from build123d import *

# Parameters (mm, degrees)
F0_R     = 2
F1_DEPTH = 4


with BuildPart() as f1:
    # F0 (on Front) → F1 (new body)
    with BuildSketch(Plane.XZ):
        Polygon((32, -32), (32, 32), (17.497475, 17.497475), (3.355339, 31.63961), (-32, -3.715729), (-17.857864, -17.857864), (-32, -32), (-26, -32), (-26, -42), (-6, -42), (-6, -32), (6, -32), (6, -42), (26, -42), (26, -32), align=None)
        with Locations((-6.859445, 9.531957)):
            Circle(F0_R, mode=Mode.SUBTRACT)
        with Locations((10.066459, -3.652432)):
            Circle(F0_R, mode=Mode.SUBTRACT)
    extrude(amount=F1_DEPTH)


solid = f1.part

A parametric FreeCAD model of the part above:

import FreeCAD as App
import Part
import Sketcher

V = App.Vector

doc = App.newDocument("Part")
body = doc.addObject("PartDesign::Body", "Body")

sketch1 = body.newObject("Sketcher::SketchObject", "Sketch")
sketch1.AttachmentSupport = (doc.getObject("XZ_Plane"), [""])
sketch1.MapMode = "FlatFace"
sketch1.addGeometry(Part.LineSegment(V(32, -32, 0), V(32, 32, 0)), False)
sketch1.addGeometry(Part.LineSegment(V(32, 32, 0), V(17.5, 17.5, 0)), False)
sketch1.addGeometry(Part.LineSegment(V(17.5, 17.5, 0), V(3.4, 31.6, 0)), False)
sketch1.addGeometry(Part.LineSegment(V(3.4, 31.6, 0), V(-32, -3.7, 0)), False)
sketch1.addGeometry(Part.LineSegment(V(-32, -3.7, 0), V(-17.9, -17.9, 0)), False)
sketch1.addGeometry(Part.LineSegment(V(-17.9, -17.9, 0), V(-32, -32, 0)), False)
sketch1.addGeometry(Part.LineSegment(V(-32, -32, 0), V(-26, -32, 0)), False)
sketch1.addGeometry(Part.LineSegment(V(-26, -32, 0), V(-26, -42, 0)), False)
sketch1.addGeometry(Part.LineSegment(V(-26, -42, 0), V(-6, -42, 0)), False)
sketch1.addGeometry(Part.LineSegment(V(-6, -42, 0), V(-6, -32, 0)), False)
sketch1.addGeometry(Part.LineSegment(V(-6, -32, 0), V(6, -32, 0)), False)
sketch1.addGeometry(Part.LineSegment(V(6, -32, 0), V(6, -42, 0)), False)
sketch1.addGeometry(Part.LineSegment(V(6, -42, 0), V(26, -42, 0)), False)
sketch1.addGeometry(Part.LineSegment(V(26, -42, 0), V(26, -32, 0)), False)
sketch1.addGeometry(Part.LineSegment(V(26, -32, 0), V(32, -32, 0)), False)
sketch1.addGeometry(Part.Circle(V(10.1, -3.7, 0), V(0, 0, 1), 2), False)
sketch1.addGeometry(Part.Circle(V(-6.9, 9.5, 0), V(0, 0, 1), 2), False)
sketch1.addConstraint(Sketcher.Constraint("Coincident", 0, 2, 1, 1))
sketch1.addConstraint(Sketcher.Constraint("Coincident", 1, 2, 2, 1))
sketch1.addConstraint(Sketcher.Constraint("Coincident", 2, 2, 3, 1))
sketch1.addConstraint(Sketcher.Constraint("Coincident", 3, 2, 4, 1))
sketch1.addConstraint(Sketcher.Constraint("Coincident", 4, 2, 5, 1))
sketch1.addConstraint(Sketcher.Constraint("Coincident", 5, 2, 6, 1))
sketch1.addConstraint(Sketcher.Constraint("Coincident", 6, 2, 7, 1))
sketch1.addConstraint(Sketcher.Constraint("Coincident", 7, 2, 8, 1))
sketch1.addConstraint(Sketcher.Constraint("Coincident", 8, 2, 9, 1))
sketch1.addConstraint(Sketcher.Constraint("Coincident", 9, 2, 10, 1))
sketch1.addConstraint(Sketcher.Constraint("Coincident", 10, 2, 11, 1))
sketch1.addConstraint(Sketcher.Constraint("Coincident", 11, 2, 12, 1))
sketch1.addConstraint(Sketcher.Constraint("Coincident", 12, 2, 13, 1))
sketch1.addConstraint(Sketcher.Constraint("Coincident", 13, 2, 14, 1))
sketch1.addConstraint(Sketcher.Constraint("Coincident", 14, 2, 0, 1))
sketch1.addConstraint(Sketcher.Constraint("Vertical", 0))
sketch1.addConstraint(Sketcher.Constraint("Horizontal", 6))
sketch1.addConstraint(Sketcher.Constraint("Vertical", 7))
sketch1.addConstraint(Sketcher.Constraint("Horizontal", 8))
sketch1.addConstraint(Sketcher.Constraint("Vertical", 9))
sketch1.addConstraint(Sketcher.Constraint("Horizontal", 10))
sketch1.addConstraint(Sketcher.Constraint("Vertical", 11))
sketch1.addConstraint(Sketcher.Constraint("Horizontal", 12))
sketch1.addConstraint(Sketcher.Constraint("Vertical", 13))
sketch1.addConstraint(Sketcher.Constraint("Horizontal", 14))
sketch1.addConstraint(Sketcher.Constraint("Equal", 15, 16))
sketch1.addConstraint(Sketcher.Constraint("Symmetric", 0, 2, 5, 2, -1, 1))
sketch1.addConstraint(Sketcher.Constraint("Symmetric", 8, 2, 11, 2, -2))
sketch1.addConstraint(Sketcher.Constraint("Symmetric", 6, 2, 13, 2, -2))
sketch1.addConstraint(Sketcher.Constraint("Perpendicular", 1, 2))
sketch1.addConstraint(Sketcher.Constraint("Perpendicular", 2, 3))
sketch1.addConstraint(Sketcher.Constraint("Perpendicular", 3, 4))
sketch1.addConstraint(Sketcher.Constraint("Perpendicular", 4, 5))
sketch1.addConstraint(Sketcher.Constraint("Horizontal", 6, 2, 9, 2))
sketch1.addConstraint(Sketcher.Constraint("Vertical", 3, 2, 5, 2))
sketch1.addConstraint(Sketcher.Constraint("Equal", 2, 4))
sketch1.addConstraint(Sketcher.Constraint("Equal", 4, 5))
sketch1.addConstraint(Sketcher.Constraint("Diameter", 15, 4.0))
sketch1.addConstraint(Sketcher.Constraint("DistanceX", 6, 1, 6, 2, 6.0))
sketch1.addConstraint(Sketcher.Constraint("DistanceX", 8, 1, 8, 2, 20.0))
sketch1.addConstraint(Sketcher.Constraint("DistanceX", 10, 1, 10, 2, 12.0))
sketch1.addConstraint(Sketcher.Constraint("DistanceY", 7, 2, 7, 1, 10.0))
sketch1.addConstraint(Sketcher.Constraint("Distance", 2, 20.0))
sketch1.addConstraint(Sketcher.Constraint("Distance", 3, 50.0))
sketch1.addConstraint(Sketcher.Constraint("DistanceX", -1, 1, 15, 3, 10.066459))
sketch1.addConstraint(Sketcher.Constraint("DistanceY", 15, 3, 16, 3, 13.184389))
sketch1.addConstraint(Sketcher.Constraint("DistanceY", 15, 3, 0, 2, 35.652432))
sketch1.addConstraint(Sketcher.Constraint("DistanceX", 16, 3, 1, 2, 24.35692))
pad1 = body.newObject("PartDesign::Pad", "Pad")
pad1.Profile = sketch1
pad1.Length = 4

doc.recompute()
